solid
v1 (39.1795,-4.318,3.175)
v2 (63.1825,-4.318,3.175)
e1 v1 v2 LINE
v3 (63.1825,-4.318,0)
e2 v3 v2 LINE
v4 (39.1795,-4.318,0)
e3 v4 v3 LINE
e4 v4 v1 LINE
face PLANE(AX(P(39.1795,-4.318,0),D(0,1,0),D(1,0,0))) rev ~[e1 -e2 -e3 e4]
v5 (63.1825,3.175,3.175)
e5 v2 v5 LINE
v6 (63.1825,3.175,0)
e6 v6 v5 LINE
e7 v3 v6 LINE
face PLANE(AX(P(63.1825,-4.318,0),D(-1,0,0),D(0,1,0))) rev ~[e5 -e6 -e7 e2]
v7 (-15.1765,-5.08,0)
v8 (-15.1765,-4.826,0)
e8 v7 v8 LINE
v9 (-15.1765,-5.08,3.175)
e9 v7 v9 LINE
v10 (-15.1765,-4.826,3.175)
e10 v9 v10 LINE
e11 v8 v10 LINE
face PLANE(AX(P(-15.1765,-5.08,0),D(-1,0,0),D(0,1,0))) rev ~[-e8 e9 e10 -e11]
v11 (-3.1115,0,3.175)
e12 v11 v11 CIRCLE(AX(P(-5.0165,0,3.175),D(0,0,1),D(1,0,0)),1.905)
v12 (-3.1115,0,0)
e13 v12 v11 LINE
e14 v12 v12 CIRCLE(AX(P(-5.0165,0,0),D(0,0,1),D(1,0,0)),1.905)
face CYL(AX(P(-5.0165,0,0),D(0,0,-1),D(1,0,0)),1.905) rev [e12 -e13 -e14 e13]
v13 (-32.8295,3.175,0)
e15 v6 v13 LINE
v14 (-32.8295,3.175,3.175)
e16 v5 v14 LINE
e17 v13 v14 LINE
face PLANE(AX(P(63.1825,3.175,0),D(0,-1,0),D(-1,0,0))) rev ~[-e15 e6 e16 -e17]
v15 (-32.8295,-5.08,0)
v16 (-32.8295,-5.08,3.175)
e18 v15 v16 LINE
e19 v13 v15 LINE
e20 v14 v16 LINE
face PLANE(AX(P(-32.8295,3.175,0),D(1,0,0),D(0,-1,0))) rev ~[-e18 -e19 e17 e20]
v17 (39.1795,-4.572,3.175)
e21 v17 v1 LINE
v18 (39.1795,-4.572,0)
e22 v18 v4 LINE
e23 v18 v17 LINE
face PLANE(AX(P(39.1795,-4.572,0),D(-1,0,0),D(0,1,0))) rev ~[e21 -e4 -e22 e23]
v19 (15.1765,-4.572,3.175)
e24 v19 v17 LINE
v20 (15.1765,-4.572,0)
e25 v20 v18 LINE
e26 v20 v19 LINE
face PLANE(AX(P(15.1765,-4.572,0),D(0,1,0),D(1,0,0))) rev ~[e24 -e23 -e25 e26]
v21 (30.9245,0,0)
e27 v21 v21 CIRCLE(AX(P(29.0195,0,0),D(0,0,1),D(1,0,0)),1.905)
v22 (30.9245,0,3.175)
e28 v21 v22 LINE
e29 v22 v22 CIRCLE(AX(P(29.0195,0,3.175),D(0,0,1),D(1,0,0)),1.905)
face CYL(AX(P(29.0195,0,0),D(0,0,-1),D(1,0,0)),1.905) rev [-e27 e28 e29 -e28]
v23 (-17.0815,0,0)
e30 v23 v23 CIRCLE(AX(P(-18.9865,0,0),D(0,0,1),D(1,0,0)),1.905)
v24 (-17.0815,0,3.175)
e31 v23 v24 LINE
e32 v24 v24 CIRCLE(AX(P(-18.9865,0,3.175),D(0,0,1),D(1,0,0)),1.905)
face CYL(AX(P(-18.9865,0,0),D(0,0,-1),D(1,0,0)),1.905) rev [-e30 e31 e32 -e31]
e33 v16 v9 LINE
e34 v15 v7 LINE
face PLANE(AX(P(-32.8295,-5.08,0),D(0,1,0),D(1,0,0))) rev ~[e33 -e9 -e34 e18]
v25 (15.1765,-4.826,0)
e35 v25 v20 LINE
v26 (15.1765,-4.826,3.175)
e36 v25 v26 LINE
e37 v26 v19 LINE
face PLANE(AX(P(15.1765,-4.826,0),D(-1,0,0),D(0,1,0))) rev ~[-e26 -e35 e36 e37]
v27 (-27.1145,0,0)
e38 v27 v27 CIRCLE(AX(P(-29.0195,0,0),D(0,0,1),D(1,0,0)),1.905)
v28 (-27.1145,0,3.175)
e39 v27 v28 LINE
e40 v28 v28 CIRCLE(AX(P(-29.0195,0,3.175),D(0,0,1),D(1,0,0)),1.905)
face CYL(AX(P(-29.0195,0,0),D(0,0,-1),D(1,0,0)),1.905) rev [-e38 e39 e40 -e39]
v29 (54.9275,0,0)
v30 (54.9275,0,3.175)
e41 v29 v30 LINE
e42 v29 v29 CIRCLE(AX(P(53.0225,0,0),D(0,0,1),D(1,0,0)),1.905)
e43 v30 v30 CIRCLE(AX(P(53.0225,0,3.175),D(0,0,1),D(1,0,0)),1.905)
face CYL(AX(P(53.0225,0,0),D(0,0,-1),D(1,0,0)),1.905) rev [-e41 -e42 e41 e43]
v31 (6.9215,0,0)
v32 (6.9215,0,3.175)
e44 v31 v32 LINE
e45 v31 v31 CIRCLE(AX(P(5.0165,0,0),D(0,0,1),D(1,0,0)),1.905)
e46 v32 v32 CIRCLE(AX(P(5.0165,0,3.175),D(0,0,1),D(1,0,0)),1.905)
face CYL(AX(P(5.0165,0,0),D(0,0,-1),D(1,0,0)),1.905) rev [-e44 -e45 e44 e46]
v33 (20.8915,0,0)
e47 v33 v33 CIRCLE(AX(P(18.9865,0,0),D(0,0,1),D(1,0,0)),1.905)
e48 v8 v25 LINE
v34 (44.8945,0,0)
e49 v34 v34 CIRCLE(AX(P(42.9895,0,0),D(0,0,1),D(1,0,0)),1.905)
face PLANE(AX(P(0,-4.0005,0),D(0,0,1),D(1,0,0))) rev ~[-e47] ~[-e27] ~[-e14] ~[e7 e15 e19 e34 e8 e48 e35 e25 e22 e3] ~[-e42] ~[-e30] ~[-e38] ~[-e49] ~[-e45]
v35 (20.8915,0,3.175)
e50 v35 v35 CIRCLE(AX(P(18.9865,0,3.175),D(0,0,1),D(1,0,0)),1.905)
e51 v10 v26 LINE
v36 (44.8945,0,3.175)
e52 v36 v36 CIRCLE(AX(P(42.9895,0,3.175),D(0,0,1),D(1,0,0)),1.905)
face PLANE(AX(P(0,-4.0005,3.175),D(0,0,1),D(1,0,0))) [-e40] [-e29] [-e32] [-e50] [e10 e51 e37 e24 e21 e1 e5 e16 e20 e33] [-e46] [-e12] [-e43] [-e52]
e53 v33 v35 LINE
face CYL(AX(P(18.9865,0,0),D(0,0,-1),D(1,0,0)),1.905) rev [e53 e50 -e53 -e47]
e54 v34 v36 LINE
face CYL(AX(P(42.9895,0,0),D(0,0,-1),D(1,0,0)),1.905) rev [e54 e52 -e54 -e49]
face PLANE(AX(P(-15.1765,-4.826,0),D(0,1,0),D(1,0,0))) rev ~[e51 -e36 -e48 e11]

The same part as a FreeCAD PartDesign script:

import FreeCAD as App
import Part
import Sketcher
Q = App.Units.Quantity


def add_polygon(sketch, points):
    """Adds a closed chain of lines whose ends are joined by coincident constraints."""
    first, n = sketch.GeometryCount, len(points)
    for a, b in zip(points, points[1:] + points[:1]):
        sketch.addGeometry(Part.LineSegment(App.Vector(*a, 0), App.Vector(*b, 0)), False)
    for i in range(n):
        sketch.addConstraint(Sketcher.Constraint("Coincident", first + i, 2, first + (i + 1) % n, 1))

doc = App.newDocument("Part")
body = doc.addObject("PartDesign::Body", "Body")

# Sketch on XY plane
sketch1 = doc.addObject("Sketcher::SketchObject", "Sketch")
body.addObject(sketch1)
sketch1.AttachmentSupport = (doc.XY_Plane, [""])
sketch1.MapMode = "FlatFace"
add_polygon(sketch1, [(15.1765, -4.826), (15.1765, -4.572), (39.1795, -4.572), (39.1795, -4.318), (63.1825, -4.318), (63.1825, 3.175), (-32.8295, 3.175), (-32.8295, -5.08), (-15.1765, -5.08), (-15.1765, -4.826)])  # lines 0-9
sketch1.addGeometry(Part.Circle(App.Vector(-29.0195, 0, 0), App.Vector(0, 0, 1), 1.905), False)  # 10
sketch1.addGeometry(Part.Circle(App.Vector(-18.9865, 0, 0), App.Vector(0, 0, 1), 1.905), False)  # 11
sketch1.addGeometry(Part.Circle(App.Vector(-5.0165, 0, 0), App.Vector(0, 0, 1), 1.905), False)  # 12
sketch1.addGeometry(Part.Circle(App.Vector(5.0165, 0, 0), App.Vector(0, 0, 1), 1.905), False)  # 13
sketch1.addGeometry(Part.Circle(App.Vector(18.9865, 0, 0), App.Vector(0, 0, 1), 1.905), False)  # 14
sketch1.addGeometry(Part.Circle(App.Vector(29.0195, 0, 0), App.Vector(0, 0, 1), 1.905), False)  # 15
sketch1.addGeometry(Part.Circle(App.Vector(42.9895, 0, 0), App.Vector(0, 0, 1), 1.905), False)  # 16
sketch1.addGeometry(Part.Circle(App.Vector(53.0225, 0, 0), App.Vector(0, 0, 1), 1.905), False)  # 17
sketch1.addConstraint([
    Sketcher.Constraint("Vertical", 0),
    Sketcher.Constraint("Horizontal", 1),
    Sketcher.Constraint("Vertical", 2),
    Sketcher.Constraint("Horizontal", 3),
    Sketcher.Constraint("Vertical", 4),
    Sketcher.Constraint("Horizontal", 5),
    Sketcher.Constraint("Vertical", 6),
    Sketcher.Constraint("Horizontal", 7),
    Sketcher.Constraint("Vertical", 8),
    Sketcher.Constraint("Horizontal", 9),
    Sketcher.Constraint("Equal", 10, 11),
    Sketcher.Constraint("Equal", 11, 12),
    Sketcher.Constraint("Equal", 12, 13),
    Sketcher.Constraint("Equal", 13, 14),
    Sketcher.Constraint("Equal", 14, 15),
    Sketcher.Constraint("Equal", 15, 16),
    Sketcher.Constraint("Equal", 16, 17),
    Sketcher.Constraint("Symmetric", 12, 3, 13, 3, -1, 1),
    Sketcher.Constraint("Symmetric", 11, 3, 14, 3, -1, 1),
    Sketcher.Constraint("Symmetric", 10, 3, 15, 3, -1, 1),
    Sketcher.Constraint("PointOnObject", 10, 3, -1),
    Sketcher.Constraint("PointOnObject", 11, 3, -1),
    Sketcher.Constraint("PointOnObject", 12, 3, -1),
    Sketcher.Constraint("PointOnObject", 16, 3, -1),
    Sketcher.Constraint("PointOnObject", 17, 3, -1),
    Sketcher.Constraint("Equal", 1, 3),
    Sketcher.Constraint("Equal", 0, 2),
    Sketcher.Constraint("Equal", 2, 8),
    Sketcher.Constraint("Diameter", 10, Q("0.15 in")),
    Sketcher.Constraint("DistanceX", 5, 2, 5, 1, Q("3.78 in")),
    Sketcher.Constraint("DistanceY", 0, 1, 0, 2, Q("0.01 in")),
    Sketcher.Constraint("DistanceY", 6, 2, -1, 1, Q("0.2 in")),
    Sketcher.Constraint("DistanceX", 13, 3, 0, 2, Q("0.4 in")),
    Sketcher.Constraint("DistanceX", 15, 3, 1, 2, Q("0.4 in")),
    Sketcher.Constraint("DistanceX", 17, 3, 3, 2, Q("0.4 in")),
    Sketcher.Constraint("DistanceX", 7, 2, 12, 3, Q("0.4 in")),
    Sketcher.Constraint("DistanceX", 1, 1, 1, 2, Q("0.945 in")),
    Sketcher.Constraint("DistanceX", 7, 1, 7, 2, Q("0.695 in")),
    Sketcher.Constraint("DistanceY", 4, 1, 4, 2, Q("0.295 in")),
    Sketcher.Constraint("DistanceX", 11, 3, 12, 3, Q("0.55 in")),
    Sketcher.Constraint("DistanceX", 15, 3, 16, 3, Q("0.55 in")),
])
pad1 = doc.addObject("PartDesign::Pad", "Pad")
body.addObject(pad1)
pad1.Profile = sketch1
pad1.Length = Q("0.125 in")

doc.recompute()
